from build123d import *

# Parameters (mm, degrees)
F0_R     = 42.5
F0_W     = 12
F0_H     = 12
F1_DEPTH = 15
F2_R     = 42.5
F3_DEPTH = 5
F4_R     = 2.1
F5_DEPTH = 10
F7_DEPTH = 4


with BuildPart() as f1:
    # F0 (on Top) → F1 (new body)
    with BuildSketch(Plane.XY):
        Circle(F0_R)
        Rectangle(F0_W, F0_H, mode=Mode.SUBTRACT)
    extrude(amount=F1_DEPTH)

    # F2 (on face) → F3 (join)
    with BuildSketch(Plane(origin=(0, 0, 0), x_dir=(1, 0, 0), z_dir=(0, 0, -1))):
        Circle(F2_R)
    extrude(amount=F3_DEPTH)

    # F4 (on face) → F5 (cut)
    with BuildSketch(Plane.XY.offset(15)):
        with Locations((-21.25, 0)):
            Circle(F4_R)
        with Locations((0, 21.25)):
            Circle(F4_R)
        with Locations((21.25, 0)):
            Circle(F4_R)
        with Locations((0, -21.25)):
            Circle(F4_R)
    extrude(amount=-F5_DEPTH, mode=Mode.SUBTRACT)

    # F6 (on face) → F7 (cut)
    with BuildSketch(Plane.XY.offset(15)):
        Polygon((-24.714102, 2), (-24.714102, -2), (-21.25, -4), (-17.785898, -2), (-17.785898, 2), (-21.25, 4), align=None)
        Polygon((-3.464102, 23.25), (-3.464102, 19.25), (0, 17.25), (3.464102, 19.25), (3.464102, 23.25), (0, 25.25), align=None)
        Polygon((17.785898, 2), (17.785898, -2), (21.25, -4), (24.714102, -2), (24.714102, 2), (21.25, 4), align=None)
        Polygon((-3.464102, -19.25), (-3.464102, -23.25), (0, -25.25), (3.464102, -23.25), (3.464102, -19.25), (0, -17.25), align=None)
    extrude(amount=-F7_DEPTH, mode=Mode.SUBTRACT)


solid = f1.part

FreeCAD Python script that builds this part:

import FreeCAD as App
import Part
import Sketcher

V = App.Vector
Q = App.Units.Quantity

doc = App.newDocument("Part")
body = doc.addObject("PartDesign::Body", "Body")

# Sketch on XY plane
sketch1 = body.newObject("Sketcher::SketchObject", "Sketch")
sketch1.AttachmentSupport = (doc.getObject("XY_Plane"), [""])
sketch1.MapMode = "FlatFace"
sketch1.addGeometry([
    Part.Circle(V(0, 0, 0), V(0, 0, 1), 42.5),  # 0
    Part.LineSegment(V(6, -6, 0), V(-6, -6, 0)),  # 1
    Part.LineSegment(V(-6, -6, 0), V(-6, 6, 0)),  # 2
    Part.LineSegment(V(-6, 6, 0), V(6, 6, 0)),  # 3
    Part.LineSegment(V(6, 6, 0), V(6, -6, 0)),  # 4
], False)
sketch1.addConstraint([
    Sketcher.Constraint("Coincident", 1, 2, 2, 1),
    Sketcher.Constraint("Coincident", 2, 2, 3, 1),
    Sketcher.Constraint("Coincident", 3, 2, 4, 1),
    Sketcher.Constraint("Coincident", 4, 2, 1, 1),
    Sketcher.Constraint("Horizontal", 1),
    Sketcher.Constraint("Vertical", 2),
    Sketcher.Constraint("Horizontal", 3),
    Sketcher.Constraint("Vertical", 4),
    Sketcher.Constraint("Coincident", 0, 3, -1, 1),
    Sketcher.Constraint("Symmetric", 1, 2, 3, 2, -1, 1),
    Sketcher.Constraint("Equal", 3, 2),
    Sketcher.Constraint("Diameter", 0, Q("85 mm")),
    Sketcher.Constraint("DistanceX", 1, 2, 1, 1, Q("12 mm")),
])
pad1 = body.newObject("PartDesign::Pad", "Pad")
pad1.Profile = sketch1
pad1.Length = 15

# Sketch on XY plane
sketch2 = body.newObject("Sketcher::SketchObject", "Sketch001")
sketch2.AttachmentSupport = (doc.getObject("XY_Plane"), [""])
sketch2.MapMode = "FlatFace"
sketch2.addGeometry(Part.Circle(V(0, 0, 0), V(0, 0, 1), 42.5), False)
sketch2.addConstraint([
    Sketcher.Constraint("Coincident", 0, 3, -1, 1),
    Sketcher.Constraint("Diameter", 0, Q("85 mm")),
])
pad2 = body.newObject("PartDesign::Pad", "Pad001")
pad2.Profile = sketch2
pad2.Length = 5
pad2.Reversed = True

# Sketch on XY plane
sketch3 = body.newObject("Sketcher::SketchObject", "Sketch002")
sketch3.AttachmentSupport = (doc.getObject("XY_Plane"), [""])
sketch3.MapMode = "FlatFace"
sketch3.AttachmentOffset = App.Placement(V(0, 0, 15), App.Rotation())
sketch3.addGeometry([
    Part.Circle(V(-21.25, 0, 0), V(0, 0, 1), 2.1),
    Part.Circle(V(0, 21.25, 0), V(0, 0, 1), 2.1),
    Part.Circle(V(21.25, 0, 0), V(0, 0, 1), 2.1),
    Part.Circle(V(0, -21.25, 0), V(0, 0, 1), 2.1),
], False)
sketch3.addConstraint([
    Sketcher.Constraint("Equal", 0, 1),
    Sketcher.Constraint("Equal", 1, 2),
    Sketcher.Constraint("Equal", 2, 3),
    Sketcher.Constraint("Symmetric", 0, 3, 2, 3, -1, 1),
    Sketcher.Constraint("Symmetric", 1, 3, 3, 3, -1, 1),
    Sketcher.Constraint("PointOnObject", 0, 3, -1),
    Sketcher.Constraint("PointOnObject", 1, 3, -2),
    Sketcher.Constraint("Diameter", 0, Q("4.2 mm")),
    Sketcher.Constraint("DistanceX", 0, 3, 2, 3, Q("42.5 mm")),
    Sketcher.Constraint("DistanceY", 3, 3, 1, 3, Q("42.5 mm")),
])
pocket1 = body.newObject("PartDesign::Pocket", "Pocket")
pocket1.Profile = sketch3
pocket1.Length = 10

# Sketch on XY plane
sketch4 = body.newObject("Sketcher::SketchObject", "Sketch003")
sketch4.AttachmentSupport = (doc.getObject("XY_Plane"), [""])
sketch4.MapMode = "FlatFace"
sketch4.AttachmentOffset = App.Placement(V(0, 0, 15), App.Rotation())
sketch4.addGeometry([
    Part.LineSegment(V(-24.714102, 2, 0), V(-24.714102, -2, 0)),  # 0
    Part.LineSegment(V(-24.714102, -2, 0), V(-21.25, -4, 0)),  # 1
    Part.LineSegment(V(-21.25, -4, 0), V(-17.785898, -2, 0)),  # 2
    Part.LineSegment(V(-17.785898, -2, 0), V(-17.785898, 2, 0)),  # 3
    Part.LineSegment(V(-17.785898, 2, 0), V(-21.25, 4, 0)),  # 4
    Part.LineSegment(V(-21.25, 4, 0), V(-24.714102, 2, 0)),  # 5
    Part.LineSegment(V(-3.464102, 23.25, 0), V(-3.464102, 19.25, 0)),  # 6
    Part.LineSegment(V(-3.464102, 19.25, 0), V(0, 17.25, 0)),  # 7
    Part.LineSegment(V(0, 17.25, 0), V(3.464102, 19.25, 0)),  # 8
    Part.LineSegment(V(3.464102, 19.25, 0), V(3.464102, 23.25, 0)),  # 9
    Part.LineSegment(V(3.464102, 23.25, 0), V(0, 25.25, 0)),  # 10
    Part.LineSegment(V(0, 25.25, 0), V(-3.464102, 23.25, 0)),  # 11
    Part.LineSegment(V(17.785898, 2, 0), V(17.785898, -2, 0)),  # 12
    Part.LineSegment(V(17.785898, -2, 0), V(21.25, -4, 0)),  # 13
    Part.LineSegment(V(21.25, -4, 0), V(24.714102, -2, 0)),  # 14
    Part.LineSegment(V(24.714102, -2, 0), V(24.714102, 2, 0)),  # 15
    Part.LineSegment(V(24.714102, 2, 0), V(21.25, 4, 0)),  # 16
    Part.LineSegment(V(21.25, 4, 0), V(17.785898, 2, 0)),  # 17
    Part.LineSegment(V(-3.464102, -19.25, 0), V(-3.464102, -23.25, 0)),  # 18
    Part.LineSegment(V(-3.464102, -23.25, 0), V(0, -25.25, 0)),  # 19
    Part.LineSegment(V(0, -25.25, 0), V(3.464102, -23.25, 0)),  # 20
    Part.LineSegment(V(3.464102, -23.25, 0), V(3.464102, -19.25, 0)),  # 21
    Part.LineSegment(V(3.464102, -19.25, 0), V(0, -17.25, 0)),  # 22
    Part.LineSegment(V(0, -17.25, 0), V(-3.464102, -19.25, 0)),  # 23
], False)
sketch4.addConstraint([
    Sketcher.Constraint("Coincident", 0, 2, 1, 1),
    Sketcher.Constraint("Coincident", 1, 2, 2, 1),
    Sketcher.Constraint("Coincident", 2, 2, 3, 1),
    Sketcher.Constraint("Coincident", 3, 2, 4, 1),
    Sketcher.Constraint("Coincident", 4, 2, 5, 1),
    Sketcher.Constraint("Coincident", 5, 2, 0, 1),
    Sketcher.Constraint("Coincident", 6, 2, 7, 1),
    Sketcher.Constraint("Coincident", 7, 2, 8, 1),
    Sketcher.Constraint("Coincident", 8, 2, 9, 1),
    Sketcher.Constraint("Coincident", 9, 2, 10, 1),
    Sketcher.Constraint("Coincident", 10, 2, 11, 1),
    Sketcher.Constraint("Coincident", 11, 2, 6, 1),
    Sketcher.Constraint("Coincident", 12, 2, 13, 1),
    Sketcher.Constraint("Coincident", 13, 2, 14, 1),
    Sketcher.Constraint("Coincident", 14, 2, 15, 1),
    Sketcher.Constraint("Coincident", 15, 2, 16, 1),
    Sketcher.Constraint("Coincident", 16, 2, 17, 1),
    Sketcher.Constraint("Coincident", 17, 2, 12, 1),
    Sketcher.Constraint("Coincident", 18, 2, 19, 1),
    Sketcher.Constraint("Coincident", 19, 2, 20, 1),
    Sketcher.Constraint("Coincident", 20, 2, 21, 1),
    Sketcher.Constraint("Coincident", 21, 2, 22, 1),
    Sketcher.Constraint("Coincident", 22, 2, 23, 1),
    Sketcher.Constraint("Coincident", 23, 2, 18, 1),
    Sketcher.Constraint("Vertical", 0),
    Sketcher.Constraint("Vertical", 3),
    Sketcher.Constraint("Vertical", 6),
    Sketcher.Constraint("Vertical", 9),
    Sketcher.Constraint("Vertical", 12),
    Sketcher.Constraint("Vertical", 15),
    Sketcher.Constraint("Vertical", 18),
    Sketcher.Constraint("Vertical", 21),
    Sketcher.Constraint("Symmetric", 3, 2, 12, 2, -1, 1),
    Sketcher.Constraint("Symmetric", 4, 2, 13, 2, -1, 1),
    Sketcher.Constraint("Symmetric", 5, 2, 14, 2, -1, 1),
    Sketcher.Constraint("Symmetric", 1, 2, 16, 2, -1, 1),
    Sketcher.Constraint("Symmetric", 9, 2, 18, 2, -1, 1),
    Sketcher.Constraint("Symmetric", 10, 2, 19, 2, -1, 1),
    Sketcher.Constraint("Symmetric", 11, 2, 20, 2, -1, 1),
    Sketcher.Constraint("Symmetric", 7, 2, 22, 2, -1, 1),
    Sketcher.Constraint("Symmetric", 6, 2, 8, 2, -2),
    Sketcher.Constraint("Symmetric", 1, 2, 13, 2, -2),
    Sketcher.Constraint("PointOnObject", 7, 2, -2),
    Sketcher.Constraint("PointOnObject", 10, 2, -2),
    Sketcher.Constraint("Parallel", 1, 4),
    Sketcher.Constraint("Parallel", 2, 5),
    Sketcher.Constraint("Parallel", 4, 7),
    Sketcher.Constraint("Parallel", 5, 8),
    Sketcher.Constraint("Parallel", 7, 10),
    Sketcher.Constraint("Parallel", 8, 11),
    Sketcher.Constraint("Parallel", 13, 16),
    Sketcher.Constraint("Parallel", 14, 17),
    Sketcher.Constraint("Parallel", 19, 22),
    Sketcher.Constraint("Parallel", 20, 23),
    Sketcher.Constraint("Horizontal", 0, 2, 2, 2),
    Sketcher.Constraint("Equal", 3, 6),
    Sketcher.Constraint("Equal", 5, 7),
    Sketcher.Constraint("DistanceY", 0, 2, 0, 1, Q("4 mm")),
    Sketcher.Constraint("Angle", 1, Q("-29.999997 deg")),
    Sketcher.Constraint("Distance", 1, Q("4 mm")),
    Sketcher.Constraint("DistanceX", 1, 2, -1, 1, Q("21.25 mm")),
    Sketcher.Constraint("DistanceY", -1, 1, 6, 2, Q("19.25 mm")),
])
pocket2 = body.newObject("PartDesign::Pocket", "Pocket001")
pocket2.Profile = sketch4
pocket2.Length = 4

doc.recompute()
